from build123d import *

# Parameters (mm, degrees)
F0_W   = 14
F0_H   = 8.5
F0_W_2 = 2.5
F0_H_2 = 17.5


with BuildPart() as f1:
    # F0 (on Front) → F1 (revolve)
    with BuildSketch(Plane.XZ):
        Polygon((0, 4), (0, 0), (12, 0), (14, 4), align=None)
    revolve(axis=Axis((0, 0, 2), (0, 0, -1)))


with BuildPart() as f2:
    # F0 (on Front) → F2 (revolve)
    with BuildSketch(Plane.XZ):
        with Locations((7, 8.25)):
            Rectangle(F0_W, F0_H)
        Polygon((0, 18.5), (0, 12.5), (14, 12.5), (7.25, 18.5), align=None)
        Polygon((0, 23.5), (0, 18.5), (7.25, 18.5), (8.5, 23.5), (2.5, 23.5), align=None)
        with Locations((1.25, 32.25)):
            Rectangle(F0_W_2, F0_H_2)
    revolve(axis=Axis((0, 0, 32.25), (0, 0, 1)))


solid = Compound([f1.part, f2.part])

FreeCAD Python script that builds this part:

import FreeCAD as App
import Part
import Sketcher
Q = App.Units.Quantity


def add_polygon(sketch, points):
    """Adds a closed chain of lines whose ends are joined by coincident constraints."""
    first, n = sketch.GeometryCount, len(points)
    for a, b in zip(points, points[1:] + points[:1]):
        sketch.addGeometry(Part.LineSegment(App.Vector(*a, 0), App.Vector(*b, 0)), False)
    for i in range(n):
        sketch.addConstraint(Sketcher.Constraint("Coincident", first + i, 2, first + (i + 1) % n, 1))

doc = App.newDocument("Part")
body = doc.addObject("PartDesign::Body", "Body")

# Sketch on XZ plane
sketch1 = body.newObject("Sketcher::SketchObject", "Sketch")
sketch1.AttachmentSupport = (doc.getObject("XZ_Plane"), [""])
sketch1.MapMode = "FlatFace"
add_polygon(sketch1, [(0, 4), (0, 0), (12, 0), (14, 4)])  # lines 0-3
sketch1.addConstraint([
    Sketcher.Constraint("Vertical", 0),
    Sketcher.Constraint("Horizontal", 1),
    Sketcher.Constraint("Horizontal", 3),
    Sketcher.Constraint("Coincident", 0, 2, -1, 1),
    Sketcher.Constraint("DistanceX", 1, 1, 1, 2, Q("12 mm")),
    Sketcher.Constraint("DistanceX", 3, 2, 3, 1, Q("14 mm")),
    Sketcher.Constraint("DistanceY", 0, 2, 0, 1, Q("4 mm")),
])
revolution = body.newObject("PartDesign::Revolution", "Revolution")
revolution.Profile = sketch1
revolution.ReferenceAxis = (sketch1, ["V_Axis"])
revolution.Angle = 360
body2 = doc.addObject("PartDesign::Body", "Body001")

# Sketch on XZ plane
sketch2 = body2.newObject("Sketcher::SketchObject", "Sketch001")
sketch2.AttachmentSupport = (doc.getObject("XZ_Plane001"), [""])
sketch2.MapMode = "FlatFace"
add_polygon(sketch2, [(0, 4), (14, 4), (14, 12.5), (7.25, 18.5), (8.5, 23.5), (2.5, 23.5), (2.5, 41), (0, 41)])  # lines 0-7
sketch2.addConstraint([
    Sketcher.Constraint("Horizontal", 0),
    Sketcher.Constraint("Vertical", 1),
    Sketcher.Constraint("Horizontal", 4),
    Sketcher.Constraint("Vertical", 5),
    Sketcher.Constraint("Horizontal", 6),
    Sketcher.Constraint("Vertical", 7),
    Sketcher.Constraint("PointOnObject", 6, 2, -2),
    Sketcher.Constraint("DistanceX", 0, 1, 0, 2, Q("14 mm")),
    Sketcher.Constraint("DistanceX", 4, 2, 4, 1, Q("6 mm")),
    Sketcher.Constraint("DistanceY", 7, 2, 7, 1, Q("37 mm")),
    Sketcher.Constraint("DistanceX", 6, 2, 6, 1, Q("2.5 mm")),
    Sketcher.Constraint("DistanceY", 1, 1, 1, 2, Q("8.5 mm")),
    Sketcher.Constraint("DistanceY", 5, 1, 5, 2, Q("17.5 mm")),
    Sketcher.Constraint("DistanceY", -1, 1, 0, 2, Q("4 mm")),
    Sketcher.Constraint("DistanceY", 1, 2, 2, 2, Q("6 mm")),
    Sketcher.Constraint("DistanceX", -1, 1, 2, 2, Q("7.25 mm")),
])
revolution2 = body2.newObject("PartDesign::Revolution", "Revolution001")
revolution2.Profile = sketch2
revolution2.ReferenceAxis = (sketch2, ["V_Axis"])
revolution2.Angle = 360

doc.recompute()
